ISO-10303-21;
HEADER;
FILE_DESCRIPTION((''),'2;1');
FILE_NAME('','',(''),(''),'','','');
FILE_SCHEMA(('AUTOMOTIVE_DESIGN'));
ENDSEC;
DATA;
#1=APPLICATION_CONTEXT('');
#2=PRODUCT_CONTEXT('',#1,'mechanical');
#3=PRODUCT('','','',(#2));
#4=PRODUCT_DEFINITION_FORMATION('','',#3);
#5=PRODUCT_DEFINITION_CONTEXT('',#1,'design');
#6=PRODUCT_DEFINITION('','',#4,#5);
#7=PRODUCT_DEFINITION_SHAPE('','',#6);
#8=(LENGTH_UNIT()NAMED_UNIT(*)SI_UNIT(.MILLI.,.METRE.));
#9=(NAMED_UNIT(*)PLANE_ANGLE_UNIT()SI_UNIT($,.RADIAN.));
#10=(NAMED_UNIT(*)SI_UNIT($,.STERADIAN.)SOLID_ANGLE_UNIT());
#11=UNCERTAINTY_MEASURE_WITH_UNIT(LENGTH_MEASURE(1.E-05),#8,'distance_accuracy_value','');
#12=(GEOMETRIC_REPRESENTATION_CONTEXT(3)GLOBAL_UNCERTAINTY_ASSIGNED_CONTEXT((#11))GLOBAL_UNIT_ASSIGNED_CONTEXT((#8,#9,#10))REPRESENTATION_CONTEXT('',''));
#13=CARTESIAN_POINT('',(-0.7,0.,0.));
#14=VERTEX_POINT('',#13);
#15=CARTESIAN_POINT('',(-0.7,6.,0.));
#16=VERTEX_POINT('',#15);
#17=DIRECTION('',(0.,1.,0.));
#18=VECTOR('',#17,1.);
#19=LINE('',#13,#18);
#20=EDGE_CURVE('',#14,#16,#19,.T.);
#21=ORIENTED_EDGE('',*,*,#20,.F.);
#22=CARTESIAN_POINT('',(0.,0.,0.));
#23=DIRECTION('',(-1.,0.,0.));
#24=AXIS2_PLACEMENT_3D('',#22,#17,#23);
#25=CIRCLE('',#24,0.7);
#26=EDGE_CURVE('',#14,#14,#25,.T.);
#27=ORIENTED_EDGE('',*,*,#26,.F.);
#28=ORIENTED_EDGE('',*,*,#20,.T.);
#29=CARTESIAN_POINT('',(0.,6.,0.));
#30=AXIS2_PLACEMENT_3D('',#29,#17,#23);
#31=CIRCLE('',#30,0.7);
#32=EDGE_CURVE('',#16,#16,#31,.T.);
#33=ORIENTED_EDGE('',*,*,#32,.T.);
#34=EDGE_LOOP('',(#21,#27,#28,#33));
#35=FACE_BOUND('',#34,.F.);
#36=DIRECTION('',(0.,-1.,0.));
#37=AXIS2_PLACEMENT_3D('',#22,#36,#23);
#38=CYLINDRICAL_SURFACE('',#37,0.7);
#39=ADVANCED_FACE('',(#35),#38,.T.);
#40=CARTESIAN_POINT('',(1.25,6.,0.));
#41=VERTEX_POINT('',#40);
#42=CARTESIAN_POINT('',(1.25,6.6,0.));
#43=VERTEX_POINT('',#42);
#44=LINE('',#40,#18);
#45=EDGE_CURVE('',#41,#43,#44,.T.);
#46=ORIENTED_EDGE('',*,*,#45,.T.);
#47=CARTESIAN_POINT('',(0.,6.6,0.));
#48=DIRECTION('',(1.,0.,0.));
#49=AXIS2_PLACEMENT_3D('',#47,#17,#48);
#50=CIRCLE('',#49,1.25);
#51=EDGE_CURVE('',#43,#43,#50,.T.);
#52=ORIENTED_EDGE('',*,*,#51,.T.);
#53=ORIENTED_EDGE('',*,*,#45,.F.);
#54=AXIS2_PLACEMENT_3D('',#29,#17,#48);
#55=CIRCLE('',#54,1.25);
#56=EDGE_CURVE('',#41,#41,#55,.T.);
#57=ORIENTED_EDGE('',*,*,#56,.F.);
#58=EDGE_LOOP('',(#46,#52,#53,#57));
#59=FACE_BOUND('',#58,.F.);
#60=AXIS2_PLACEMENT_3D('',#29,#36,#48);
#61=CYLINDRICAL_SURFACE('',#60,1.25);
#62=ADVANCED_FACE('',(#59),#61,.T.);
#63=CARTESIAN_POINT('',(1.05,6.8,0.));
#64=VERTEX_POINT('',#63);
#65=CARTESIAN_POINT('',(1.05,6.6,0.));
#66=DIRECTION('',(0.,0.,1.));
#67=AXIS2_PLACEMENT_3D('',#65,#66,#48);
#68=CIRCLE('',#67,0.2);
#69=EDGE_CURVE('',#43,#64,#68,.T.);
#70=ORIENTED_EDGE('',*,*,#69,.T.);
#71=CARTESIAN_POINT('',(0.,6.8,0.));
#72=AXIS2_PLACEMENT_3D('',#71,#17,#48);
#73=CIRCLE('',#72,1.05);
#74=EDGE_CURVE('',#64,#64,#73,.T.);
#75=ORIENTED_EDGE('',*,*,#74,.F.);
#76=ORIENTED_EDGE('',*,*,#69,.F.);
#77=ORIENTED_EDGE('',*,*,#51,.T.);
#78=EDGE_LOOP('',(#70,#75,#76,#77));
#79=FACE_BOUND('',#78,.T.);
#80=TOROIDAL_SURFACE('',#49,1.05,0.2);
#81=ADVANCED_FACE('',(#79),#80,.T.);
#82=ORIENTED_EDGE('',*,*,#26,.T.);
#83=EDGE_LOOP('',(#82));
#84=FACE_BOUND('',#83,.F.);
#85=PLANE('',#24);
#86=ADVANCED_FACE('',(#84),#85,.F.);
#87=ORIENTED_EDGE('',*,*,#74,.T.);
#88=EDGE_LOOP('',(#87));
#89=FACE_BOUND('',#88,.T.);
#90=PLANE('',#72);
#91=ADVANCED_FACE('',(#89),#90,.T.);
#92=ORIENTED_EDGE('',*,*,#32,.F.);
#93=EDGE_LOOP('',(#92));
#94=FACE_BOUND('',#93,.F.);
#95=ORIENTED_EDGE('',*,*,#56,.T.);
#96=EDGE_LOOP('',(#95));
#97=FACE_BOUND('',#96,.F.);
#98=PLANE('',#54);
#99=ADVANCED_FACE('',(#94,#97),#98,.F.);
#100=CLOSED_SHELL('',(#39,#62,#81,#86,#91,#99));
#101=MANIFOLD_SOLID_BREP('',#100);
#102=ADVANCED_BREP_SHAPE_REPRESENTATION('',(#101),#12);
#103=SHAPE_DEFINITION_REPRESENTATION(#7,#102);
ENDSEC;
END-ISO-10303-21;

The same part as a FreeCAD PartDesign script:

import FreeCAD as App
import Part
import Sketcher
Q = App.Units.Quantity


def edges_at(feature, points):
    """Names of the edges that pass closest to the given points."""
    edges = feature.Shape.Edges
    near = lambda p: min(range(len(edges)), key=lambda i: edges[i].distToShape(Part.Vertex(*p))[0])
    return sorted({f"Edge{near(p) + 1}" for p in points})

doc = App.newDocument("Part")
params = doc.addObject("Spreadsheet::Sheet", "Params")
for row, (alias, value) in enumerate([
    ("sketch1_diameter", "1.4 mm"),
    ("pad1_length", "6 mm"),
    ("sketch2_diameter", "2.5 mm"),
    ("pad2_length", "0.8 mm"),
    ("fillet_radius", "0.2 mm"),
], start=1):
    params.set(f"A{row}", alias)
    params.set(f"B{row}", "=" + value)
    params.setAlias(f"B{row}", alias)

body = doc.addObject("PartDesign::Body", "Body")

sketch1 = body.newObject("Sketcher::SketchObject", "Sketch")
sketch1.AttachmentSupport = (doc.getObject("XZ_Plane"), [""])
sketch1.MapMode = "FlatFace"
sketch1.addGeometry(Part.Circle(App.Vector(0, 0, 0), App.Vector(0, 0, 1), 0.7), False)
sketch1.addConstraint([
    Sketcher.Constraint("Coincident", 0, 3, -1, 1),
    Sketcher.Constraint("Diameter", 0, Q("1.4 mm")),
])
sketch1.setExpression("Constraints[1]", "Params.sketch1_diameter")
pad1 = body.newObject("PartDesign::Pad", "Pad")
pad1.Profile = sketch1
pad1.setExpression("Length", "Params.pad1_length")
pad1.Reversed = True

sketch2 = body.newObject("Sketcher::SketchObject", "Sketch001")
sketch2.AttachmentSupport = (doc.getObject("XZ_Plane"), [""])
sketch2.MapMode = "FlatFace"
sketch2.AttachmentOffset = App.Placement(App.Vector(0, 0, -6), App.Rotation())
sketch2.addGeometry(Part.Circle(App.Vector(0, 0, 0), App.Vector(0, 0, 1), 1.2), False)
sketch2.addConstraint([
    Sketcher.Constraint("Coincident", 0, 3, -1, 1),
    Sketcher.Constraint("Diameter", 0, Q("2.5 mm")),
])
sketch2.setExpression("Constraints[1]", "Params.sketch2_diameter")
pad2 = body.newObject("PartDesign::Pad", "Pad001")
pad2.Profile = sketch2
pad2.setExpression("Length", "Params.pad2_length")
pad2.Reversed = True
doc.recompute()

fillet = body.newObject("PartDesign::Fillet", "Fillet")
fillet.Base = (pad2, edges_at(pad2, [(-1.25, 6.8, 0)]))
fillet.setExpression("Radius", "Params.fillet_radius")

doc.recompute()
